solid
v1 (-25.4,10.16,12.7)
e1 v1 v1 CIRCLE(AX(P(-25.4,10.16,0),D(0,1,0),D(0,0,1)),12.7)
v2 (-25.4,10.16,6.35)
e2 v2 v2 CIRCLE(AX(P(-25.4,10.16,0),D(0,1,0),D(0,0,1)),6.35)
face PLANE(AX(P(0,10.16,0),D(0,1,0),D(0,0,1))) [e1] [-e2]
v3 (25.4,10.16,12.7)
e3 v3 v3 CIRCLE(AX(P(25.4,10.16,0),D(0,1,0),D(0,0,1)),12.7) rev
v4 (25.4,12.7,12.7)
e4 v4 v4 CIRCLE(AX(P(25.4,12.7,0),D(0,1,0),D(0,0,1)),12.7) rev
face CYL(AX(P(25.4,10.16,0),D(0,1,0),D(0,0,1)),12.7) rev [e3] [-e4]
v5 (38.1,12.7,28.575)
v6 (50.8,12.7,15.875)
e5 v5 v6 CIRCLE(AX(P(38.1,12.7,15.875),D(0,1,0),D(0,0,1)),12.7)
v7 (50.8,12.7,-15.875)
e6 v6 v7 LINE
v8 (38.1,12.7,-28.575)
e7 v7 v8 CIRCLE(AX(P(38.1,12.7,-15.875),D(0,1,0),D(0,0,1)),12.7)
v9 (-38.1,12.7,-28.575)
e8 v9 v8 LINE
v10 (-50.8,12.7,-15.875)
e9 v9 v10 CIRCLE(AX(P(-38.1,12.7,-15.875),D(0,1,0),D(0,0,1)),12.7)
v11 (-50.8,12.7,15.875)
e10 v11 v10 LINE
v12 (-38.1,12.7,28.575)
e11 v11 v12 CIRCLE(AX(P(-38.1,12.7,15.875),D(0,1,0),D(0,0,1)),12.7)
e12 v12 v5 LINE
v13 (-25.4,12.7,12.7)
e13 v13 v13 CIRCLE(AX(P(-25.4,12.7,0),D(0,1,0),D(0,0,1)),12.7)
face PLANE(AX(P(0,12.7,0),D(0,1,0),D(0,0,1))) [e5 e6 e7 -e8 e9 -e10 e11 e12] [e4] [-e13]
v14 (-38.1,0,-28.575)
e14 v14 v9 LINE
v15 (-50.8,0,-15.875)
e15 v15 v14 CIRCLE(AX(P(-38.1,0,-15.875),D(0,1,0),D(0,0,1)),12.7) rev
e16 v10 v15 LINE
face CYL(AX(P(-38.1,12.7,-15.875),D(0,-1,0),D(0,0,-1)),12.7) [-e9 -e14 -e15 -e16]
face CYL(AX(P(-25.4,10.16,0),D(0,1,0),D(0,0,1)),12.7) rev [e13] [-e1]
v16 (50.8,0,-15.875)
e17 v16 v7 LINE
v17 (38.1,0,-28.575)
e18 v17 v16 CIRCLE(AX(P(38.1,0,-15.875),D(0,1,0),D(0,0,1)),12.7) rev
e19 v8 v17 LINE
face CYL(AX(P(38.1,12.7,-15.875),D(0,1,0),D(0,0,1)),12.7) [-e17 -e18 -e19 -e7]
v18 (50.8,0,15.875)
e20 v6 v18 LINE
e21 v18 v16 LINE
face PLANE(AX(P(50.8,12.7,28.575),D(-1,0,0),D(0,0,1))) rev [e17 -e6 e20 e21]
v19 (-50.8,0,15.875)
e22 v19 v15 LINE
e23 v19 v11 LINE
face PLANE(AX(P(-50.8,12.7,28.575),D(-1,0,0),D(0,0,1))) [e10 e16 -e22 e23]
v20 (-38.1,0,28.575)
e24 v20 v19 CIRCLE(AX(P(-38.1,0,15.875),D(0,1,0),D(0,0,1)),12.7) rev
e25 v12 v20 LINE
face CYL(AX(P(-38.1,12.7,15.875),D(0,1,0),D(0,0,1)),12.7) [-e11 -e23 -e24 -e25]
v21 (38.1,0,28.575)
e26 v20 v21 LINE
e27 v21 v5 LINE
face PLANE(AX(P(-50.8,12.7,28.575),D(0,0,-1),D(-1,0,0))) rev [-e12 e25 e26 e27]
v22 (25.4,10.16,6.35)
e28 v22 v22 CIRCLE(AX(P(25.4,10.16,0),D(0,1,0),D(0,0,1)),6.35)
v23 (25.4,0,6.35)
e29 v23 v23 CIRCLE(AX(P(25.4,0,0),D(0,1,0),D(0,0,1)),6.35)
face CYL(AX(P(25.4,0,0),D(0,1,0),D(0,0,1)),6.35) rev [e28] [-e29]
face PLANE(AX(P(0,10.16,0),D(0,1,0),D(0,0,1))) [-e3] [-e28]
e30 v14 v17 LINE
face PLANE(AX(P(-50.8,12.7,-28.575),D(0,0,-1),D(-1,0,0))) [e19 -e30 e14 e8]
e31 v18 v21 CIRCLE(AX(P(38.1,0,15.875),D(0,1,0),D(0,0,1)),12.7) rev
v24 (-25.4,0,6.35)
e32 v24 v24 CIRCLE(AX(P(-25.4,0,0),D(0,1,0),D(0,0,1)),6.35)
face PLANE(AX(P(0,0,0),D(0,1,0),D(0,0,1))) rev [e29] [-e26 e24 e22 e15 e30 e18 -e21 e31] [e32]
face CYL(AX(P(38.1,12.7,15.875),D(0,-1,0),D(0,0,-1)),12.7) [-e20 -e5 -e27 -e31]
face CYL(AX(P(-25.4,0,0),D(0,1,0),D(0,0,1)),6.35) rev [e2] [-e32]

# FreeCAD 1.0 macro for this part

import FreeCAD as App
import Part
import Sketcher

V = App.Vector
Q = App.Units.Quantity


def edges_at(feature, points):
    """Names of the edges that pass closest to the given points."""
    edges = feature.Shape.Edges
    near = lambda p: min(range(len(edges)), key=lambda i: edges[i].distToShape(Part.Vertex(*p))[0])
    return sorted({f"Edge{near(p) + 1}" for p in points})

doc = App.newDocument("Part")
body = doc.addObject("PartDesign::Body", "Body")

sketch1 = body.newObject("Sketcher::SketchObject", "Sketch")
sketch1.AttachmentSupport = (doc.getObject("XZ_Plane"), [""])
sketch1.MapMode = "FlatFace"
sketch1.addGeometry(Part.LineSegment(V(-50.8, -28.575, 0), V(-50.8, 28.575, 0)), False)
sketch1.addGeometry(Part.LineSegment(V(-50.8, 28.575, 0), V(50.8, 28.575, 0)), False)
sketch1.addGeometry(Part.LineSegment(V(50.8, 28.575, 0), V(50.8, -28.575, 0)), False)
sketch1.addGeometry(Part.LineSegment(V(50.8, -28.575, 0), V(-50.8, -28.575, 0)), False)
sketch1.addConstraint(Sketcher.Constraint("Coincident", 0, 2, 1, 1))
sketch1.addConstraint(Sketcher.Constraint("Coincident", 1, 2, 2, 1))
sketch1.addConstraint(Sketcher.Constraint("Coincident", 2, 2, 3, 1))
sketch1.addConstraint(Sketcher.Constraint("Coincident", 3, 2, 0, 1))
sketch1.addConstraint(Sketcher.Constraint("Vertical", 0))
sketch1.addConstraint(Sketcher.Constraint("Horizontal", 1))
sketch1.addConstraint(Sketcher.Constraint("Vertical", 2))
sketch1.addConstraint(Sketcher.Constraint("Horizontal", 3))
sketch1.addConstraint(Sketcher.Constraint("Symmetric", 0, 2, 2, 2, -1, 1))
sketch1.addConstraint(Sketcher.Constraint("DistanceX", 1, 1, 1, 2, Q("4 in")))
sketch1.addConstraint(Sketcher.Constraint("DistanceY", 0, 1, 0, 2, Q("2.25 in")))
pad1 = body.newObject("PartDesign::Pad", "Pad")
pad1.Profile = sketch1
pad1.Length = Q("0.5 in")
pad1.Reversed = True

sketch2 = body.newObject("Sketcher::SketchObject", "Sketch001")
sketch2.AttachmentSupport = (doc.getObject("XZ_Plane"), [""])
sketch2.MapMode = "FlatFace"
sketch2.AttachmentOffset = App.Placement(V(0, 0, -0.5 * 25.4), App.Rotation())
sketch2.addGeometry(Part.Circle(V(-25.4, 0, 0), V(0, 0, 1), 6.35), False)
sketch2.addGeometry(Part.Circle(V(25.4, 0, 0), V(0, 0, 1), 6.35), False)
sketch2.addConstraint(Sketcher.Constraint("Equal", 0, 1))
sketch2.addConstraint(Sketcher.Constraint("Symmetric", 0, 3, 1, 3, -1, 1))
sketch2.addConstraint(Sketcher.Constraint("PointOnObject", 0, 3, -1))
sketch2.addConstraint(Sketcher.Constraint("Diameter", 0, Q("0.5 in")))
sketch2.addConstraint(Sketcher.Constraint("DistanceX", 0, 3, -1, 1, Q("1 in")))
pocket1 = body.newObject("PartDesign::Pocket", "Pocket")
pocket1.Profile = sketch2
pocket1.Length = Q("0.5 in")
pocket1.Reversed = True

sketch3 = body.newObject("Sketcher::SketchObject", "Sketch002")
sketch3.AttachmentSupport = (doc.getObject("XZ_Plane"), [""])
sketch3.MapMode = "FlatFace"
sketch3.AttachmentOffset = App.Placement(V(0, 0, -0.5 * 25.4), App.Rotation())
sketch3.addGeometry(Part.Circle(V(-25.4, 0, 0), V(0, 0, 1), 12.7), False)
sketch3.addGeometry(Part.Circle(V(-25.4, 0, 0), V(0, 0, 1), 6.35), False)
sketch3.addGeometry(Part.Circle(V(25.4, 0, 0), V(0, 0, 1), 12.7), False)
sketch3.addGeometry(Part.Circle(V(25.4, 0, 0), V(0, 0, 1), 6.35), False)
sketch3.addConstraint(Sketcher.Constraint("Coincident", 1, 3, 0, 3))
sketch3.addConstraint(Sketcher.Constraint("Coincident", 3, 3, 2, 3))
sketch3.addConstraint(Sketcher.Constraint("Equal", 0, 2))
sketch3.addConstraint(Sketcher.Constraint("Equal", 1, 3))
sketch3.addConstraint(Sketcher.Constraint("Symmetric", 0, 3, 2, 3, -1, 1))
sketch3.addConstraint(Sketcher.Constraint("PointOnObject", 0, 3, -1))
sketch3.addConstraint(Sketcher.Constraint("Diameter", 0, Q("1 in")))
sketch3.addConstraint(Sketcher.Constraint("Diameter", 1, Q("0.5 in")))
sketch3.addConstraint(Sketcher.Constraint("DistanceX", 0, 3, -1, 1, Q("1 in")))
pocket2 = body.newObject("PartDesign::Pocket", "Pocket001")
pocket2.Profile = sketch3
pocket2.Length = Q("0.1 in")
pocket2.Reversed = True
doc.recompute()

fillet = body.newObject("PartDesign::Fillet", "Fillet")
fillet.Base = (pocket2, edges_at(pocket2, [
    (-50.8, 6.35, 28.575),
    (-50.8, 6.35, -28.575),
    (50.8, 6.35, -28.575),
    (50.8, 6.35, 28.575),
]))
fillet.Radius = Q("0.5 in")

doc.recompute()
